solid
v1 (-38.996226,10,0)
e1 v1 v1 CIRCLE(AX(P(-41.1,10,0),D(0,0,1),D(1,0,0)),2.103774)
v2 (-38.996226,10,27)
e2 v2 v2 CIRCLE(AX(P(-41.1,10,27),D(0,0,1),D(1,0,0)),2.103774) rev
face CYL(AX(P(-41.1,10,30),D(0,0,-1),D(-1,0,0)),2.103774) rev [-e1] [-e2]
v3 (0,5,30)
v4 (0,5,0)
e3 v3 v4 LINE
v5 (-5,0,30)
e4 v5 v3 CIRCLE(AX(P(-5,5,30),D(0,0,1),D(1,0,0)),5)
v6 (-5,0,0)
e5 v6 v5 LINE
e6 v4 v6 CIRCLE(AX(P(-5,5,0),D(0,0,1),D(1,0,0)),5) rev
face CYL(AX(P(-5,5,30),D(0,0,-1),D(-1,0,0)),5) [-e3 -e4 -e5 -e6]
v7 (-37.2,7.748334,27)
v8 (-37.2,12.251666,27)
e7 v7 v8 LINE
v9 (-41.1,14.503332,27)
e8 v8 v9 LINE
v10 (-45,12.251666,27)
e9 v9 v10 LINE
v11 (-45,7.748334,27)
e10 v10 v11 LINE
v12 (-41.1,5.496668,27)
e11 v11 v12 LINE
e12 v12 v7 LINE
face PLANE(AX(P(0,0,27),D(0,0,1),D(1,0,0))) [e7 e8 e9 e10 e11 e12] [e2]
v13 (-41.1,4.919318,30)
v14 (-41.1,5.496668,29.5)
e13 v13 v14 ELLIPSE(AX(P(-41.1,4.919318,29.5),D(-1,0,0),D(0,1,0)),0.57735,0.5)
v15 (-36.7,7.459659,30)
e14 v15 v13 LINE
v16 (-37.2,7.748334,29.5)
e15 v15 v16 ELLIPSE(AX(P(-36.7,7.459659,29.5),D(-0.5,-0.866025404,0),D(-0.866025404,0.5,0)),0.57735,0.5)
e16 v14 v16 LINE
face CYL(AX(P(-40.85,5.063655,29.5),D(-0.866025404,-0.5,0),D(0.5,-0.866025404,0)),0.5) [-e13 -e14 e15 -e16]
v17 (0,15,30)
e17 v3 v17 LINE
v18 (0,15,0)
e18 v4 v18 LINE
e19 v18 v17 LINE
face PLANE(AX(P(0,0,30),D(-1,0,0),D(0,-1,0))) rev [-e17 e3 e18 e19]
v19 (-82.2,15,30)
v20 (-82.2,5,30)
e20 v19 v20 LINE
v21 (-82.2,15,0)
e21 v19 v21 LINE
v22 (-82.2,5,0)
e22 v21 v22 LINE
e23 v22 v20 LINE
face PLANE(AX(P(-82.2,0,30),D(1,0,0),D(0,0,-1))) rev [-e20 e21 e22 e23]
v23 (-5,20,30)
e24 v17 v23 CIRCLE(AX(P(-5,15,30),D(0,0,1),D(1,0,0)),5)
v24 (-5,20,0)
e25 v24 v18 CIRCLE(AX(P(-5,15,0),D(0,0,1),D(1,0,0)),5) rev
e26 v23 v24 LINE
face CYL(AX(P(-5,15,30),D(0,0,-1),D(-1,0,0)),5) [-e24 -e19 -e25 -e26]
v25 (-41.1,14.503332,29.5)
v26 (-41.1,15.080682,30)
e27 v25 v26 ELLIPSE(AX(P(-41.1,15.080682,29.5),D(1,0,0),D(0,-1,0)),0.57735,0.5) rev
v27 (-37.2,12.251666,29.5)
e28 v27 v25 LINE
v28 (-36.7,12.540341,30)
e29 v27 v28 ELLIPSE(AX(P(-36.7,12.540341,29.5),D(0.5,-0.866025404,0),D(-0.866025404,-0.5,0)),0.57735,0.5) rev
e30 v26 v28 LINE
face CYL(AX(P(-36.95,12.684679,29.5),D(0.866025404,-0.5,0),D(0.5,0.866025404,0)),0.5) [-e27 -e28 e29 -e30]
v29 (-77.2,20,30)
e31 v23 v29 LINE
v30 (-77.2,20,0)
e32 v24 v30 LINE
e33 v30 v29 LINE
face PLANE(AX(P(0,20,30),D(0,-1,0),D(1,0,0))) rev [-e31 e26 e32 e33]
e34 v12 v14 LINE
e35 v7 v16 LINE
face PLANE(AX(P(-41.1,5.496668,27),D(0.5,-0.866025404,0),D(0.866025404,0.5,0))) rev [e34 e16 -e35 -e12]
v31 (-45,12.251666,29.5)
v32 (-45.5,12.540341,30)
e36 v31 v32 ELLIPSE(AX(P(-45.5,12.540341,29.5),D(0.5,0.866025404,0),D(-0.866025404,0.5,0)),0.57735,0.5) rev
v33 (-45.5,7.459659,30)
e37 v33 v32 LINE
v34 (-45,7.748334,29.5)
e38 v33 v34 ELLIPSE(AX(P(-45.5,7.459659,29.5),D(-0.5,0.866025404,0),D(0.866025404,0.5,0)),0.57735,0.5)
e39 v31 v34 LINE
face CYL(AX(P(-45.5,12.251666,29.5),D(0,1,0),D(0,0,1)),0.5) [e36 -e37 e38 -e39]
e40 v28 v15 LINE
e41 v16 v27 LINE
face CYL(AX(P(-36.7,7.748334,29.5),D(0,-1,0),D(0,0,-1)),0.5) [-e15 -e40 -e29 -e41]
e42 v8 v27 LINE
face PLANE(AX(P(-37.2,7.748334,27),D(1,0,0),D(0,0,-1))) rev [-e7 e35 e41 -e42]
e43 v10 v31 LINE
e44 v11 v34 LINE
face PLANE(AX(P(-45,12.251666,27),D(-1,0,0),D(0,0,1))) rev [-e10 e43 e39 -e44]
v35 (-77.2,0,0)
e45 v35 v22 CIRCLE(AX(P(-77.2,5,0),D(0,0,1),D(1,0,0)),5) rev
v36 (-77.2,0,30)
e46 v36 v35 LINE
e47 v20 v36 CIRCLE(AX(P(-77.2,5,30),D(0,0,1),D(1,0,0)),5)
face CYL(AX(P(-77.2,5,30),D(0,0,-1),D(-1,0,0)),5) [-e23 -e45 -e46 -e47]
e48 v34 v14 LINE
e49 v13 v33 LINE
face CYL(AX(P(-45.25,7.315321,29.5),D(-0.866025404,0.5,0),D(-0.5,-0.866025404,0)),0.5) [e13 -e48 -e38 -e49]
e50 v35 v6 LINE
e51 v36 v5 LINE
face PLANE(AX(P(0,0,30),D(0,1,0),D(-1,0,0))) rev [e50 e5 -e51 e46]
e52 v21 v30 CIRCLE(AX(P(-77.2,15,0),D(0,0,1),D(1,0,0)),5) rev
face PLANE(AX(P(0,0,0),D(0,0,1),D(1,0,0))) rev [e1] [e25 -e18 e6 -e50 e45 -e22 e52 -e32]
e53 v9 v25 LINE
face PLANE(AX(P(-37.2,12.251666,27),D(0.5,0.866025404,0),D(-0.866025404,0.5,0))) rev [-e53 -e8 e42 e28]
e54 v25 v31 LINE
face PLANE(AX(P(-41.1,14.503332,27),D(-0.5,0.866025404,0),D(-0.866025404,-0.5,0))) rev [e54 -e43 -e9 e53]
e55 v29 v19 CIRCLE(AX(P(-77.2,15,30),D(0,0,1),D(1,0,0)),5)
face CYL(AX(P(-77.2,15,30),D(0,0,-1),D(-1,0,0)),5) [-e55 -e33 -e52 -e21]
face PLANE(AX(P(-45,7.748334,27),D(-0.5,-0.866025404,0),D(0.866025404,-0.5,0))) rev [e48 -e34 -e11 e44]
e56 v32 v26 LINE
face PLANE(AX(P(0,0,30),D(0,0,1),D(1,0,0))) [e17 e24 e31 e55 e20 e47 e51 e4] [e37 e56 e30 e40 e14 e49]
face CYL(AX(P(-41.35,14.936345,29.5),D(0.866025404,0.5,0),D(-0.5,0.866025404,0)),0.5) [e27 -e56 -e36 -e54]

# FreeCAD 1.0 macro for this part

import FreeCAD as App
import Part
import Sketcher
Q = App.Units.Quantity


def edges_at(feature, points):
    """Names of the edges that pass closest to the given points."""
    edges = feature.Shape.Edges
    near = lambda p: min(range(len(edges)), key=lambda i: edges[i].distToShape(Part.Vertex(*p))[0])
    return sorted({f"Edge{near(p) + 1}" for p in points})

doc = App.newDocument("Part")
body = doc.addObject("PartDesign::Body", "Body")

sketch1 = body.newObject("Sketcher::SketchObject", "Sketch")
sketch1.AttachmentSupport = (doc.getObject("XY_Plane"), [""])
sketch1.MapMode = "FlatFace"
sketch1.addGeometry([
    Part.LineSegment(App.Vector(-82.2, 20, 0), App.Vector(-82.2, 0, 0)),
    Part.LineSegment(App.Vector(-82.2, 0, 0), App.Vector(0, 0, 0)),
    Part.LineSegment(App.Vector(0, 0, 0), App.Vector(0, 20, 0)),
    Part.LineSegment(App.Vector(0, 20, 0), App.Vector(-82.2, 20, 0)),
], False)
sketch1.addConstraint([
    Sketcher.Constraint("Coincident", 0, 2, 1, 1),
    Sketcher.Constraint("Coincident", 1, 2, 2, 1),
    Sketcher.Constraint("Coincident", 2, 2, 3, 1),
    Sketcher.Constraint("Coincident", 3, 2, 0, 1),
    Sketcher.Constraint("Vertical", 0),
    Sketcher.Constraint("Horizontal", 1),
    Sketcher.Constraint("Vertical", 2),
    Sketcher.Constraint("Horizontal", 3),
    Sketcher.Constraint("Coincident", 1, 2, -1, 1),
    Sketcher.Constraint("DistanceY", 0, 2, 0, 1, 20.0),
    Sketcher.Constraint("DistanceX", 1, 1, 1, 2, 82.2),
])
pad1 = body.newObject("PartDesign::Pad", "Pad")
pad1.Profile = sketch1
pad1.Length = 30

sketch2 = body.newObject("Sketcher::SketchObject", "Sketch001")
sketch2.AttachmentSupport = (doc.getObject("XY_Plane"), [""])
sketch2.MapMode = "FlatFace"
sketch2.AttachmentOffset = App.Placement(App.Vector(0, 0, 30), App.Rotation())
sketch2.addGeometry([
    Part.LineSegment(App.Vector(-41.1, 5.496668, 0), App.Vector(-37.2, 7.748334, 0)),
    Part.LineSegment(App.Vector(-37.2, 7.748334, 0), App.Vector(-37.2, 12.251666, 0)),
    Part.LineSegment(App.Vector(-37.2, 12.251666, 0), App.Vector(-41.1, 14.503332, 0)),
    Part.LineSegment(App.Vector(-41.1, 14.503332, 0), App.Vector(-45, 12.251666, 0)),
    Part.LineSegment(App.Vector(-45, 12.251666, 0), App.Vector(-45, 7.748334, 0)),
    Part.LineSegment(App.Vector(-45, 7.748334, 0), App.Vector(-41.1, 5.496668, 0)),
], False)
sketch2.addConstraint([
    Sketcher.Constraint("Coincident", 0, 2, 1, 1),
    Sketcher.Constraint("Coincident", 1, 2, 2, 1),
    Sketcher.Constraint("Coincident", 2, 2, 3, 1),
    Sketcher.Constraint("Coincident", 3, 2, 4, 1),
    Sketcher.Constraint("Coincident", 4, 2, 5, 1),
    Sketcher.Constraint("Coincident", 5, 2, 0, 1),
    Sketcher.Constraint("Vertical", 1),
    Sketcher.Constraint("Vertical", 4),
    Sketcher.Constraint("Parallel", 0, 3),
    Sketcher.Constraint("Parallel", 2, 5),
    Sketcher.Constraint("Horizontal", 1, 2, 3, 2),
    Sketcher.Constraint("Horizontal", 0, 2, 4, 2),
    Sketcher.Constraint("Vertical", 2, 2, 5, 2),
    Sketcher.Constraint("Angle", 0, Q("30 deg")),
    Sketcher.Constraint("DistanceX", 3, 2, -1, 1, 45.0),
    Sketcher.Constraint("DistanceX", 0, 2, -1, 1, 37.2),
    Sketcher.Constraint("DistanceY", 0, 2, 2, 2, 6.754998),
    Sketcher.Constraint("DistanceY", -1, 1, 0, 2, 7.748334),
])
pocket1 = body.newObject("PartDesign::Pocket", "Pocket")
pocket1.Profile = sketch2
pocket1.Length = 3
doc.recompute()

fillet = body.newObject("PartDesign::Fillet", "Fillet")
fillet.Base = (pocket1, edges_at(pocket1, [
    (0, 0, 15),
    (-82.2, 0, 15),
    (-82.2, 20, 15),
    (0, 20, 15),
]))
fillet.Radius = 5
doc.recompute()

fillet2 = body.newObject("PartDesign::Fillet", "Fillet001")
fillet2.Base = (fillet, edges_at(fillet, [
    (-43.05, 6.623, 30),
    (-39.15, 6.623, 30),
    (-37.2, 10, 30),
    (-39.15, 13.377, 30),
    (-43.05, 13.377, 30),
    (-45, 10, 30),
]))
fillet2.Radius = 0.5

sketch3 = body.newObject("Sketcher::SketchObject", "Sketch002")
sketch3.AttachmentSupport = (doc.getObject("XY_Plane"), [""])
sketch3.MapMode = "FlatFace"
sketch3.addGeometry(Part.Circle(App.Vector(-41.1, 10, 0), App.Vector(0, 0, 1), 2.103774), False)
sketch3.addConstraint([
    Sketcher.Constraint("DistanceY", -1, 1, 0, 3, 10.0),
    Sketcher.Constraint("DistanceX", 0, 3, -1, 1, 41.1),
    Sketcher.Constraint("Diameter", 0, 4.207548),
])
pocket2 = body.newObject("PartDesign::Pocket", "Pocket001")
pocket2.Profile = sketch3
pocket2.Type = "ThroughAll"
pocket2.Reversed = True

doc.recompute()
